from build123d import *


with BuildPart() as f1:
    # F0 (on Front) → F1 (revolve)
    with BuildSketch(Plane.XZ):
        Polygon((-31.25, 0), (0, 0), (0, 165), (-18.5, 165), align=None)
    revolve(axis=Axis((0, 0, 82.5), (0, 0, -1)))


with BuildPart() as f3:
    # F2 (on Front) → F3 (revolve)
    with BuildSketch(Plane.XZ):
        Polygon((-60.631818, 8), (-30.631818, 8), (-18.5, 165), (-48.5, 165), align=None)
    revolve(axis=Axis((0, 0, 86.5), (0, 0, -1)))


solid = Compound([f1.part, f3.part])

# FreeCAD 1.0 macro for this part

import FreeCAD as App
import Part
import Sketcher
from FreeCAD import Vector

doc = App.newDocument("Part")
params = doc.addObject("Spreadsheet::Sheet", "Params")
for row, (alias, value) in enumerate([
    ("sketch1_height", "165 mm"),
    ("sketch1_width", "18.5 mm"),
    ("sketch1_width2", "31.25 mm"),
    ("revolution_angle", "360 deg"),
    ("sketch2_width", "30 mm"),
    ("revolution2_angle", "360 deg"),
], start=1):
    params.set(f"A{row}", alias)
    params.set(f"B{row}", "=" + value)
    params.setAlias(f"B{row}", alias)

body = doc.addObject("PartDesign::Body", "Body")

# Sketch on XZ plane
sketch1 = doc.addObject("Sketcher::SketchObject", "Sketch")
body.addObject(sketch1)
sketch1.AttachmentSupport = (doc.XZ_Plane, [""])
sketch1.MapMode = "FlatFace"
sketch1.addGeometry([
    Part.LineSegment(Vector(-31, 0, 0), Vector(0, 0, 0)),
    Part.LineSegment(Vector(0, 0, 0), Vector(0, 165, 0)),
    Part.LineSegment(Vector(0, 165, 0), Vector(-18, 165, 0)),
    Part.LineSegment(Vector(-18, 165, 0), Vector(-31, 0, 0)),
], False)
sketch1.addConstraint([
    Sketcher.Constraint("Coincident", 0, 2, 1, 1),
    Sketcher.Constraint("Coincident", 1, 2, 2, 1),
    Sketcher.Constraint("Coincident", 2, 2, 3, 1),
    Sketcher.Constraint("Coincident", 3, 2, 0, 1),
    Sketcher.Constraint("Horizontal", 0),
    Sketcher.Constraint("Vertical", 1),
    Sketcher.Constraint("Horizontal", 2),
    Sketcher.Constraint("Coincident", 0, 2, -1, 1),
    Sketcher.Constraint("DistanceY", 1, 1, 1, 2, 165.0),
    Sketcher.Constraint("DistanceX", 2, 2, 2, 1, 18.5),
    Sketcher.Constraint("DistanceX", 0, 1, 0, 2, 31.25),
])
sketch1.setExpression("Constraints[8]", "Params.sketch1_height")
sketch1.setExpression("Constraints[9]", "Params.sketch1_width")
sketch1.setExpression("Constraints[10]", "Params.sketch1_width2")
revolution = doc.addObject("PartDesign::Revolution", "Revolution")
body.addObject(revolution)
revolution.Profile = sketch1
revolution.ReferenceAxis = (sketch1, ["V_Axis"])
revolution.setExpression("Angle", "Params.revolution_angle")
body2 = doc.addObject("PartDesign::Body", "Body001")

# Sketch on XZ plane
sketch2 = doc.addObject("Sketcher::SketchObject", "Sketch001")
body2.addObject(sketch2)
sketch2.AttachmentSupport = (doc.getObject("XZ_Plane001"), [""])
sketch2.MapMode = "FlatFace"
sketch2.addGeometry([
    Part.LineSegment(Vector(-61, 8, 0), Vector(-31, 8, 0)),
    Part.LineSegment(Vector(-31, 8, 0), Vector(-18, 165, 0)),
    Part.LineSegment(Vector(-18, 165, 0), Vector(-48, 165, 0)),
    Part.LineSegment(Vector(-48, 165, 0), Vector(-61, 8, 0)),
], False)
sketch2.addConstraint([
    Sketcher.Constraint("Coincident", 0, 2, 1, 1),
    Sketcher.Constraint("Coincident", 1, 2, 2, 1),
    Sketcher.Constraint("Coincident", 2, 2, 3, 1),
    Sketcher.Constraint("Coincident", 3, 2, 0, 1),
    Sketcher.Constraint("Horizontal", 0),
    Sketcher.Constraint("Horizontal", 2),
    Sketcher.Constraint("Parallel", 1, 3),
    Sketcher.Constraint("DistanceX", 0, 1, 0, 2, 30.0),
    Sketcher.Constraint("DistanceY", -1, 1, 0, 2, 8.0),
    Sketcher.Constraint("DistanceY", -1, 1, 1, 2, 165.0),
    Sketcher.Constraint("DistanceX", 1, 2, -1, 1, 18.5),
    Sketcher.Constraint("Distance", 1, 157.468032),
])
sketch2.setExpression("Constraints[7]", "Params.sketch2_width")
revolution2 = doc.addObject("PartDesign::Revolution", "Revolution001")
body2.addObject(revolution2)
revolution2.Profile = sketch2
revolution2.ReferenceAxis = (sketch2, ["V_Axis"])
revolution2.setExpression("Angle", "Params.revolution2_angle")

doc.recompute()
